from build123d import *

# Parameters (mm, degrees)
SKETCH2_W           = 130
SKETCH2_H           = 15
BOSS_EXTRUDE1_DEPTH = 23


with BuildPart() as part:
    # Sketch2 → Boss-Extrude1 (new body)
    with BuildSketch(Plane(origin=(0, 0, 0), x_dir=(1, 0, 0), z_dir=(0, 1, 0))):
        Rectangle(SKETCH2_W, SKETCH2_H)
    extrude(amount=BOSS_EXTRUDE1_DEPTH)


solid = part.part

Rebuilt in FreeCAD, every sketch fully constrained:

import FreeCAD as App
import Part
import Sketcher

V = App.Vector
Q = App.Units.Quantity

doc = App.newDocument("Part")
body = doc.addObject("PartDesign::Body", "Body")

# Sketch on XZ plane
sketch1 = doc.addObject("Sketcher::SketchObject", "Sketch")
body.addObject(sketch1)
sketch1.AttachmentSupport = (doc.XZ_Plane, [""])
sketch1.MapMode = "FlatFace"
sketch1.addGeometry(Part.LineSegment(V(-65, -7.5, 0), V(-65, 7.5, 0)), False)
sketch1.addGeometry(Part.LineSegment(V(-65, 7.5, 0), V(65, 7.5, 0)), False)
sketch1.addGeometry(Part.LineSegment(V(65, 7.5, 0), V(65, -7.5, 0)), False)
sketch1.addGeometry(Part.LineSegment(V(65, -7.5, 0), V(-65, -7.5, 0)), False)
sketch1.addConstraint(Sketcher.Constraint("Coincident", 0, 2, 1, 1))
sketch1.addConstraint(Sketcher.Constraint("Coincident", 1, 2, 2, 1))
sketch1.addConstraint(Sketcher.Constraint("Coincident", 2, 2, 3, 1))
sketch1.addConstraint(Sketcher.Constraint("Coincident", 3, 2, 0, 1))
sketch1.addConstraint(Sketcher.Constraint("Vertical", 0))
sketch1.addConstraint(Sketcher.Constraint("Horizontal", 1))
sketch1.addConstraint(Sketcher.Constraint("Vertical", 2))
sketch1.addConstraint(Sketcher.Constraint("Horizontal", 3))
sketch1.addConstraint(Sketcher.Constraint("Symmetric", 0, 2, 2, 2, -1, 1))
sketch1.addConstraint(Sketcher.Constraint("DistanceX", 1, 1, 1, 2, Q("130 mm")))
sketch1.addConstraint(Sketcher.Constraint("DistanceY", 0, 1, 0, 2, Q("15 mm")))
pad1 = doc.addObject("PartDesign::Pad", "Pad")
body.addObject(pad1)
pad1.Profile = sketch1
pad1.Length = 23
pad1.Reversed = True

doc.recompute()
